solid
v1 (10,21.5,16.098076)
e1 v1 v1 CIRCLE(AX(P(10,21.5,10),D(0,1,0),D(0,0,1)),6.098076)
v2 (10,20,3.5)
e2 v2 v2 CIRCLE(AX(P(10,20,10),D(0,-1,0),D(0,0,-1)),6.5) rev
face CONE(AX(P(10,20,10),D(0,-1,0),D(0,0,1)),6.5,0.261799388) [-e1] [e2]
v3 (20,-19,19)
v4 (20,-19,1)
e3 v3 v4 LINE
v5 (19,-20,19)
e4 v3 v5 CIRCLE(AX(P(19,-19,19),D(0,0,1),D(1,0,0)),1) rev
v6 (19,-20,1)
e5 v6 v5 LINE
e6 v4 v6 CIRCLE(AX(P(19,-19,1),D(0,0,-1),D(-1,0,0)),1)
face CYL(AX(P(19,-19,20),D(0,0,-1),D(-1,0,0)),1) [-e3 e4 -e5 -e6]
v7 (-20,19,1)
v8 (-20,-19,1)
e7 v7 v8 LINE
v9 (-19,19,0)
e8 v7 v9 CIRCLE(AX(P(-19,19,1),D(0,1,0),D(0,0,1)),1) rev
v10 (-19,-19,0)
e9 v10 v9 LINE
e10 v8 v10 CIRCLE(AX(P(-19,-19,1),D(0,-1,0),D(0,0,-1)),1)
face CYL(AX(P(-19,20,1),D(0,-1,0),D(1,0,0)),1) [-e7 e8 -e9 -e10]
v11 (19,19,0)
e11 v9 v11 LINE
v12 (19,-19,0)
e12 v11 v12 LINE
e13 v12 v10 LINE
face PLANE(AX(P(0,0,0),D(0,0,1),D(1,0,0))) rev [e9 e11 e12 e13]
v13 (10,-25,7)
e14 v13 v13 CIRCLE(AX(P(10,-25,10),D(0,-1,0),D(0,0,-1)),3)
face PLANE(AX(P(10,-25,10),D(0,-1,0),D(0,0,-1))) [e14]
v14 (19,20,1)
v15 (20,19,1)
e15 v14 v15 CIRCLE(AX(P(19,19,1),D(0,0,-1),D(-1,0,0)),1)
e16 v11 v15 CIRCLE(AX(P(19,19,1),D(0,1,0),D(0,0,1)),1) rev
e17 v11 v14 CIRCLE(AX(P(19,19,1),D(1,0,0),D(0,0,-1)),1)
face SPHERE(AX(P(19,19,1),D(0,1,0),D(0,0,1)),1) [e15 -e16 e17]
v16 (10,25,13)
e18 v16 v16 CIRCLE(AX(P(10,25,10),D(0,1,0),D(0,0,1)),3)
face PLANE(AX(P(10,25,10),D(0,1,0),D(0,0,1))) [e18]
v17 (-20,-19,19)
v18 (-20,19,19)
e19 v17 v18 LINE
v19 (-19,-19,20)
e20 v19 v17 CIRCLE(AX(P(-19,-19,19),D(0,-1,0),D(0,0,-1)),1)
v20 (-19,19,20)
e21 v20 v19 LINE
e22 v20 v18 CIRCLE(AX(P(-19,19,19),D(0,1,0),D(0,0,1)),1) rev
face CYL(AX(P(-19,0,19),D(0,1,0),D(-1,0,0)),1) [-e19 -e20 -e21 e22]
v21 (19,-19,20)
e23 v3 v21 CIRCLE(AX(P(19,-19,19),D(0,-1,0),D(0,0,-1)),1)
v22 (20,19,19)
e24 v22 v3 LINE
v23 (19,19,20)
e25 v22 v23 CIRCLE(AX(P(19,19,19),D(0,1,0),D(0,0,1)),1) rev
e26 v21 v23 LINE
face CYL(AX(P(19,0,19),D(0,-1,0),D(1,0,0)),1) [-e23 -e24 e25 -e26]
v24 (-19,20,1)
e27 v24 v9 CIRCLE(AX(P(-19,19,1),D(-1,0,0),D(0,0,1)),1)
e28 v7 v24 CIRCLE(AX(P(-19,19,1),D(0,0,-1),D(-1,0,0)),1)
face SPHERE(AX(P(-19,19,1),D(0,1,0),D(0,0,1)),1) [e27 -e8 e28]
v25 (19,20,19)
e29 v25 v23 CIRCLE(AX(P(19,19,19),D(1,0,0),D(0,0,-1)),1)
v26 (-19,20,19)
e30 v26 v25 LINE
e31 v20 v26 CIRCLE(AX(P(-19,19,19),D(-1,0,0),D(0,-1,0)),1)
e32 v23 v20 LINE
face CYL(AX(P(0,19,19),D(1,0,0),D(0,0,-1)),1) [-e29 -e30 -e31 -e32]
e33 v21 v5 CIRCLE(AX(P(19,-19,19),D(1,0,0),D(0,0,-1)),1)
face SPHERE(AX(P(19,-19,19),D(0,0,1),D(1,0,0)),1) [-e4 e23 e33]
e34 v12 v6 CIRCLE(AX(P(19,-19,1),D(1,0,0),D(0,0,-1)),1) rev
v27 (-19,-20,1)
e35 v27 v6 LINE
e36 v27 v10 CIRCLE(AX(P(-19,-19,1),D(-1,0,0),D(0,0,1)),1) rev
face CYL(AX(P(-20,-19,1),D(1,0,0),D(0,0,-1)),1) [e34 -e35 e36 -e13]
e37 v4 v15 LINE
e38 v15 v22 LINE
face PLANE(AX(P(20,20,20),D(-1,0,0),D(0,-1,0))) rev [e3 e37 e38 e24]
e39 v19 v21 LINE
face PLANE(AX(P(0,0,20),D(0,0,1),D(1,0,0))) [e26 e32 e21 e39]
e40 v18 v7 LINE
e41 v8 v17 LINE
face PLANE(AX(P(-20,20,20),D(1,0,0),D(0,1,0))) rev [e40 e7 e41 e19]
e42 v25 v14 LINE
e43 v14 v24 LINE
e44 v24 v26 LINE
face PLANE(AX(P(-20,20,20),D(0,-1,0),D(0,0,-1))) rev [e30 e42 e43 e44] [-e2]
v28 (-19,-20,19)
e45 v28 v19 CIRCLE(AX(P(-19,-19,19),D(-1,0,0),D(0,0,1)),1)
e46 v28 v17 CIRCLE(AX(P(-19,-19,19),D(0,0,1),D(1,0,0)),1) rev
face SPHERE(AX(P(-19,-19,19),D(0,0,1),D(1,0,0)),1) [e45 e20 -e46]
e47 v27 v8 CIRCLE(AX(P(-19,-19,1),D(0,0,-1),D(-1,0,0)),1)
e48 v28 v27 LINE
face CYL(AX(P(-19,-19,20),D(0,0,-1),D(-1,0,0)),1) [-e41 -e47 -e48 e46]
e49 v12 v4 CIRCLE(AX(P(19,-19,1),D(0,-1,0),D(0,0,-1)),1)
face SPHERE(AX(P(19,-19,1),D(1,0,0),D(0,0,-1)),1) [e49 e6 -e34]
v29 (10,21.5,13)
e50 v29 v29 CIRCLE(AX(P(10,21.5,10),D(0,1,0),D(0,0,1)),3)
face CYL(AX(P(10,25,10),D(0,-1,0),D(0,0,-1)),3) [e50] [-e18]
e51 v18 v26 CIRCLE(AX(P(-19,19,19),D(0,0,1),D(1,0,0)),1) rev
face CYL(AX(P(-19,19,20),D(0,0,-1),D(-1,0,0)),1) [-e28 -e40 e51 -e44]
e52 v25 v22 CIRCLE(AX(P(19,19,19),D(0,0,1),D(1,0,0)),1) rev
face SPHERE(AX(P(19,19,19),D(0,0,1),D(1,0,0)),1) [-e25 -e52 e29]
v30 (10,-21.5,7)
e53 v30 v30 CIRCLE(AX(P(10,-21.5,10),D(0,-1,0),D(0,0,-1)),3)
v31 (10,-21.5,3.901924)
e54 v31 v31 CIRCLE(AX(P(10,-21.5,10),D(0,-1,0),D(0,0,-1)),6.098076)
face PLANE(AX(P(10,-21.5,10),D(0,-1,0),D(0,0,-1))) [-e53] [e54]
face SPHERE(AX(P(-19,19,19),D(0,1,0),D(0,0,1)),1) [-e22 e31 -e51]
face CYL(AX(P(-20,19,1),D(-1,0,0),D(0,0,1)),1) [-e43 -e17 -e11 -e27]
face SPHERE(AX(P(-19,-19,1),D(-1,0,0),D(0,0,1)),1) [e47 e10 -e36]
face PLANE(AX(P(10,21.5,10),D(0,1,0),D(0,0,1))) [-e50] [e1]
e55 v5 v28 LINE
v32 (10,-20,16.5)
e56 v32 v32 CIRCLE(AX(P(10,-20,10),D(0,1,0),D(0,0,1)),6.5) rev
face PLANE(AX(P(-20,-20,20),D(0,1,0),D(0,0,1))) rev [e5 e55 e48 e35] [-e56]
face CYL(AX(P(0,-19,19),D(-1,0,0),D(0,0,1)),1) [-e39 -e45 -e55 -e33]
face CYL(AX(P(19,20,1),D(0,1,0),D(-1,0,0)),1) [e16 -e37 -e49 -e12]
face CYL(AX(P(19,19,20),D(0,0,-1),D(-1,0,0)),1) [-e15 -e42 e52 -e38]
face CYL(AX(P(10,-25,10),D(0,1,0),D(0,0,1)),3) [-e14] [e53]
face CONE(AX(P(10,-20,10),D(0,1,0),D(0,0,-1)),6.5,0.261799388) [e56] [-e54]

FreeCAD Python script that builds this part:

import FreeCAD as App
import Part
import Sketcher

doc = App.newDocument("Part")
params = doc.addObject("Spreadsheet::Sheet", "Params")
for row, (alias, value) in enumerate([
    ("sketch1_width", "40 mm"),
    ("pad1_length", "20 mm"),
    ("fillet_radius", "1 mm"),
    ("sketch2_diameter", "13 mm"),
    ("pad2_length", "1.5 mm"),
    ("pad2_taper", "-15 deg"),
    ("sketch3_diameter", "6 mm"),
    ("pad3_length", "3.5 mm"),
    ("sketch4_diameter", "13 mm"),
    ("pad4_length", "1.5 mm"),
    ("pad4_taper", "-15 deg"),
    ("sketch5_diameter", "6 mm"),
    ("pad5_length", "3.5 mm"),
], start=1):
    params.set(f"A{row}", alias)
    params.set(f"B{row}", "=" + value)
    params.setAlias(f"B{row}", alias)

body = doc.addObject("PartDesign::Body", "Body")

sketch1 = body.newObject("Sketcher::SketchObject", "Sketch")
sketch1.AttachmentSupport = (doc.getObject("XY_Plane"), [""])
sketch1.MapMode = "FlatFace"
sketch1.addGeometry(Part.LineSegment(App.Vector(-20, 20, 0), App.Vector(-20, -20, 0)), False)
sketch1.addGeometry(Part.LineSegment(App.Vector(-20, -20, 0), App.Vector(20, -20, 0)), False)
sketch1.addGeometry(Part.LineSegment(App.Vector(20, -20, 0), App.Vector(20, 20, 0)), False)
sketch1.addGeometry(Part.LineSegment(App.Vector(20, 20, 0), App.Vector(-20, 20, 0)), False)
sketch1.addConstraint(Sketcher.Constraint("Coincident", 0, 2, 1, 1))
sketch1.addConstraint(Sketcher.Constraint("Coincident", 1, 2, 2, 1))
sketch1.addConstraint(Sketcher.Constraint("Coincident", 2, 2, 3, 1))
sketch1.addConstraint(Sketcher.Constraint("Coincident", 3, 2, 0, 1))
sketch1.addConstraint(Sketcher.Constraint("Vertical", 0))
sketch1.addConstraint(Sketcher.Constraint("Horizontal", 1))
sketch1.addConstraint(Sketcher.Constraint("Vertical", 2))
sketch1.addConstraint(Sketcher.Constraint("Horizontal", 3))
sketch1.addConstraint(Sketcher.Constraint("Symmetric", 0, 2, 2, 2, -1, 1))
sketch1.addConstraint(Sketcher.Constraint("Equal", 3, 0))
sketch1.addConstraint(Sketcher.Constraint("DistanceX", 1, 1, 1, 2, 40.0))
sketch1.setExpression("Constraints[10]", "Params.sketch1_width")
pad1 = body.newObject("PartDesign::Pad", "Pad")
pad1.Profile = sketch1
pad1.setExpression("Length", "Params.pad1_length")
doc.recompute()

fillet = body.newObject("PartDesign::Fillet", "Fillet")
fillet.Base = (pad1, ["Edge1"])
fillet.UseAllEdges = True
fillet.setExpression("Radius", "Params.fillet_radius")

sketch2 = body.newObject("Sketcher::SketchObject", "Sketch001")
sketch2.AttachmentSupport = (doc.getObject("XZ_Plane"), [""])
sketch2.MapMode = "FlatFace"
sketch2.AttachmentOffset = App.Placement(App.Vector(0, 0, -20), App.Rotation())
sketch2.addGeometry(Part.Circle(App.Vector(10, 10, 0), App.Vector(0, 0, 1), 6), False)
sketch2.addConstraint(Sketcher.Constraint("Diameter", 0, 13.0))
sketch2.addConstraint(Sketcher.Constraint("DistanceX", -1, 1, 0, 3, 10.0))
sketch2.addConstraint(Sketcher.Constraint("DistanceY", -1, 1, 0, 3, 10.0))
sketch2.setExpression("Constraints[0]", "Params.sketch2_diameter")
pad2 = body.newObject("PartDesign::Pad", "Pad001")
pad2.Profile = sketch2
pad2.setExpression("Length", "Params.pad2_length")
pad2.Reversed = True
pad2.setExpression("TaperAngle", "Params.pad2_taper")

sketch3 = body.newObject("Sketcher::SketchObject", "Sketch002")
sketch3.AttachmentSupport = (doc.getObject("XZ_Plane"), [""])
sketch3.MapMode = "FlatFace"
sketch3.AttachmentOffset = App.Placement(App.Vector(0, 0, -21.5), App.Rotation())
sketch3.addGeometry(Part.Circle(App.Vector(10, 10, 0), App.Vector(0, 0, 1), 3), False)
sketch3.addConstraint(Sketcher.Constraint("Diameter", 0, 6.0))
sketch3.addConstraint(Sketcher.Constraint("DistanceX", -1, 1, 0, 3, 10.0))
sketch3.addConstraint(Sketcher.Constraint("DistanceY", -1, 1, 0, 3, 10.0))
sketch3.setExpression("Constraints[0]", "Params.sketch3_diameter")
pad3 = body.newObject("PartDesign::Pad", "Pad002")
pad3.Profile = sketch3
pad3.setExpression("Length", "Params.pad3_length")
pad3.Reversed = True

sketch4 = body.newObject("Sketcher::SketchObject", "Sketch003")
sketch4.AttachmentSupport = (doc.getObject("XZ_Plane"), [""])
sketch4.MapMode = "FlatFace"
sketch4.AttachmentOffset = App.Placement(App.Vector(0, 0, 20), App.Rotation())
sketch4.addGeometry(Part.Circle(App.Vector(10, 10, 0), App.Vector(0, 0, 1), 6), False)
sketch4.addConstraint(Sketcher.Constraint("Diameter", 0, 13.0))
sketch4.addConstraint(Sketcher.Constraint("DistanceX", -1, 1, 0, 3, 10.0))
sketch4.addConstraint(Sketcher.Constraint("DistanceY", -1, 1, 0, 3, 10.0))
sketch4.setExpression("Constraints[0]", "Params.sketch4_diameter")
pad4 = body.newObject("PartDesign::Pad", "Pad003")
pad4.Profile = sketch4
pad4.setExpression("Length", "Params.pad4_length")
pad4.setExpression("TaperAngle", "Params.pad4_taper")

sketch5 = body.newObject("Sketcher::SketchObject", "Sketch004")
sketch5.AttachmentSupport = (doc.getObject("XZ_Plane"), [""])
sketch5.MapMode = "FlatFace"
sketch5.AttachmentOffset = App.Placement(App.Vector(0, 0, 25), App.Rotation())
sketch5.addGeometry(Part.Circle(App.Vector(10, 10, 0), App.Vector(0, 0, 1), 3), False)
sketch5.addConstraint(Sketcher.Constraint("Diameter", 0, 6.0))
sketch5.addConstraint(Sketcher.Constraint("DistanceX", -1, 1, 0, 3, 10.0))
sketch5.addConstraint(Sketcher.Constraint("DistanceY", -1, 1, 0, 3, 10.0))
sketch5.setExpression("Constraints[0]", "Params.sketch5_diameter")
pad5 = body.newObject("PartDesign::Pad", "Pad004")
pad5.Profile = sketch5
pad5.setExpression("Length", "Params.pad5_length")
pad5.Reversed = True

doc.recompute()
